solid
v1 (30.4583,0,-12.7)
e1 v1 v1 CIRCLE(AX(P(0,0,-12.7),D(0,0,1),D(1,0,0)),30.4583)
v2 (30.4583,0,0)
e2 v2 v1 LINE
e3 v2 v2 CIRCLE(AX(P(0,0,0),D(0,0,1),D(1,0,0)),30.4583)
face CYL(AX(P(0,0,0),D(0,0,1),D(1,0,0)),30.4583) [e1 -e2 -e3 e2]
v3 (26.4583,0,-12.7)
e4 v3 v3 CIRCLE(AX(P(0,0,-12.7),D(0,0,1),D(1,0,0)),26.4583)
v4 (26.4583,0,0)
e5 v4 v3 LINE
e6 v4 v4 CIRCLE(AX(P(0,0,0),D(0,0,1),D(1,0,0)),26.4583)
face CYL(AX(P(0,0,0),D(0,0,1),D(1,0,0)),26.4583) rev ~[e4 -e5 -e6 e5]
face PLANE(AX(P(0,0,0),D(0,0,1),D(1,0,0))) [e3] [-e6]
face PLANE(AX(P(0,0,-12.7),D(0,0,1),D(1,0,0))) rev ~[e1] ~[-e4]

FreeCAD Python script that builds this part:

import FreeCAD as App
import Part
import Sketcher
Q = App.Units.Quantity

doc = App.newDocument("Part")
body = doc.addObject("PartDesign::Body", "Body")

# Sketch on XY plane
sketch1 = doc.addObject("Sketcher::SketchObject", "Sketch")
body.addObject(sketch1)
sketch1.AttachmentSupport = (doc.XY_Plane, [""])
sketch1.MapMode = "FlatFace"
sketch1.addGeometry([
    Part.Circle(App.Vector(0, 0, 0), App.Vector(0, 0, 1), 30),
    Part.Circle(App.Vector(0, 0, 0), App.Vector(0, 0, 1), 26),
], False)
sketch1.addConstraint([
    Sketcher.Constraint("Coincident", 0, 3, -1, 1),
    Sketcher.Constraint("Coincident", 1, 3, -1, 1),
    Sketcher.Constraint("Diameter", 0, Q("2.3983 in")),
    Sketcher.Constraint("Diameter", 1, Q("52.9166 mm")),
])
pad1 = doc.addObject("PartDesign::Pad", "Pad")
body.addObject(pad1)
pad1.Profile = sketch1
pad1.Length = Q("0.5 in")
pad1.Reversed = True

doc.recompute()
